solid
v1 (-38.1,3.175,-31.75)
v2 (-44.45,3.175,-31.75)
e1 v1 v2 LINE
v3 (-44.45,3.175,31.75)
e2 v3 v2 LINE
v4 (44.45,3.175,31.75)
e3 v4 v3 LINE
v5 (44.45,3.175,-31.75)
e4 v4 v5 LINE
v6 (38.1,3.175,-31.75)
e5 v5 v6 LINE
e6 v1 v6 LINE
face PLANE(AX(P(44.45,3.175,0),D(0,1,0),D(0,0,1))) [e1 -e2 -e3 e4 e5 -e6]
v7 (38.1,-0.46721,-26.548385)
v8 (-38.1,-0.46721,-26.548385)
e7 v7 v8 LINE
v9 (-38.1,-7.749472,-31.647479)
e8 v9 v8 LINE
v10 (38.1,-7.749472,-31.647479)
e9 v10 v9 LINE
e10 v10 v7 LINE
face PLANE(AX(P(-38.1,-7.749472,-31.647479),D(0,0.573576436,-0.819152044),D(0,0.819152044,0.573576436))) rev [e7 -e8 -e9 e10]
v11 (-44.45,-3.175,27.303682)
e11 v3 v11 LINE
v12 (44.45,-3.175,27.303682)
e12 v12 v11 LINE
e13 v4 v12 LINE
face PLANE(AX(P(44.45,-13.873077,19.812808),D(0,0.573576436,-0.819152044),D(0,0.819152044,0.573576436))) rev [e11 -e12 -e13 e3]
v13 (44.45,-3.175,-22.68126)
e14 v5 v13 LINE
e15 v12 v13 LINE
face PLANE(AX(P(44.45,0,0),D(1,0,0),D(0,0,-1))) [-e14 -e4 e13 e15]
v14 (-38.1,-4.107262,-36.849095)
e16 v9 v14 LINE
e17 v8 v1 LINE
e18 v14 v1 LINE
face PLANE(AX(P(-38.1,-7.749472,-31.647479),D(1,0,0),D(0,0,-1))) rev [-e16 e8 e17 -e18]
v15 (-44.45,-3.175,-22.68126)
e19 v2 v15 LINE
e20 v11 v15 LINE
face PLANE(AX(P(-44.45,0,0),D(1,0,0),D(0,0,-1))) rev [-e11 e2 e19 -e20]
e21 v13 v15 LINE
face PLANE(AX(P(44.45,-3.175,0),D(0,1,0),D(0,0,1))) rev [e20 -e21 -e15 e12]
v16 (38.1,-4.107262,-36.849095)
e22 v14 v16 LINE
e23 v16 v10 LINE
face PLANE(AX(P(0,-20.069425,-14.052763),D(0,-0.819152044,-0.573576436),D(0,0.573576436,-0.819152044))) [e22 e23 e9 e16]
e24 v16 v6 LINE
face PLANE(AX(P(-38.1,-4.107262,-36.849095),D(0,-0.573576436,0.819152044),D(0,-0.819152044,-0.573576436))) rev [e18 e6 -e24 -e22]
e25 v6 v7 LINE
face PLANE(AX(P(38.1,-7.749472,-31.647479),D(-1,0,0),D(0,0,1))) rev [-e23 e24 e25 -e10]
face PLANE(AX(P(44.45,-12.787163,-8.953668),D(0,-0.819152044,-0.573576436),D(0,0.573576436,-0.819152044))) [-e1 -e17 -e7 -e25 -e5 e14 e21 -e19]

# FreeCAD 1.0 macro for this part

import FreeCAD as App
import Part
import Sketcher
from FreeCAD import Vector
Q = App.Units.Quantity

doc = App.newDocument("Part")
params = doc.addObject("Spreadsheet::Sheet", "Params")
for row, (alias, value) in enumerate([
    ("sketch1_height", "2.5 in"),
    ("pad1_length", "3.5 in"),
    ("sketch2_width", "3 in"),
    ("sketch2_height", "0.25 in"),
    ("pad2_length", "0.35 in"),
], start=1):
    params.set(f"A{row}", alias)
    params.set(f"B{row}", "=" + value)
    params.setAlias(f"B{row}", alias)

body = doc.addObject("PartDesign::Body", "Body")

sketch1 = body.newObject("Sketcher::SketchObject", "Sketch")
sketch1.AttachmentSupport = (doc.getObject("YZ_Plane"), [""])
sketch1.MapMode = "FlatFace"
sketch1.addGeometry(Part.LineSegment(Vector(-3, -23, 0), Vector(3, -32, 0)), False)
sketch1.addGeometry(Part.LineSegment(Vector(3, -32, 0), Vector(3, 32, 0)), False)
sketch1.addGeometry(Part.LineSegment(Vector(3, 32, 0), Vector(-3, 27, 0)), False)
sketch1.addGeometry(Part.LineSegment(Vector(-3, 27, 0), Vector(-3, -23, 0)), False)
sketch1.addConstraint(Sketcher.Constraint("Coincident", 0, 2, 1, 1))
sketch1.addConstraint(Sketcher.Constraint("Coincident", 1, 2, 2, 1))
sketch1.addConstraint(Sketcher.Constraint("Coincident", 2, 2, 3, 1))
sketch1.addConstraint(Sketcher.Constraint("Coincident", 3, 2, 0, 1))
sketch1.addConstraint(Sketcher.Constraint("Vertical", 1))
sketch1.addConstraint(Sketcher.Constraint("Vertical", 3))
sketch1.addConstraint(Sketcher.Constraint("Perpendicular", 0, 2))
sketch1.addConstraint(Sketcher.Constraint("DistanceY", 1, 1, 1, 2, Q("2.5 in")))
sketch1.addConstraint(Sketcher.Constraint("Angle", 0, Q("-55 deg")))
sketch1.addConstraint(Sketcher.Constraint("DistanceY", 0, 2, -1, 1, Q("1.25 in")))
sketch1.addConstraint(Sketcher.Constraint("DistanceX", 2, 2, 1, 2, Q("0.25 in")))
sketch1.addConstraint(Sketcher.Constraint("DistanceX", -1, 1, 0, 2, Q("0.125 in")))
sketch1.setExpression("Constraints[7]", "Params.sketch1_height")
pad1 = body.newObject("PartDesign::Pad", "Pad")
pad1.Profile = sketch1
pad1.setExpression("Length", "Params.pad1_length")
pad1.Midplane = True

sketch2 = body.newObject("Sketcher::SketchObject", "Sketch001")
sketch2.Placement = App.Placement(Vector(0, -12.787163, -8.953668), App.Rotation(Vector(1, 0, 0), Vector(0, -0.573576436, 0.819152044), Vector(0, -0.819152044, -0.573576436), "ZXY"))
sketch2.addGeometry(Part.LineSegment(Vector(-38, -21, 0), Vector(-38, -28, 0)), False)
sketch2.addGeometry(Part.LineSegment(Vector(-38, -28, 0), Vector(38, -28, 0)), False)
sketch2.addGeometry(Part.LineSegment(Vector(38, -28, 0), Vector(38, -21, 0)), False)
sketch2.addGeometry(Part.LineSegment(Vector(38, -21, 0), Vector(-38, -21, 0)), False)
sketch2.addConstraint(Sketcher.Constraint("Coincident", 0, 2, 1, 1))
sketch2.addConstraint(Sketcher.Constraint("Coincident", 1, 2, 2, 1))
sketch2.addConstraint(Sketcher.Constraint("Coincident", 2, 2, 3, 1))
sketch2.addConstraint(Sketcher.Constraint("Coincident", 3, 2, 0, 1))
sketch2.addConstraint(Sketcher.Constraint("Vertical", 0))
sketch2.addConstraint(Sketcher.Constraint("Horizontal", 1))
sketch2.addConstraint(Sketcher.Constraint("Vertical", 2))
sketch2.addConstraint(Sketcher.Constraint("Horizontal", 3))
sketch2.addConstraint(Sketcher.Constraint("DistanceX", 1, 1, 1, 2, Q("3 in")))
sketch2.addConstraint(Sketcher.Constraint("DistanceY", 0, 2, 0, 1, Q("0.25 in")))
sketch2.addConstraint(Sketcher.Constraint("DistanceX", 0, 2, -1, 1, Q("1.5 in")))
sketch2.addConstraint(Sketcher.Constraint("DistanceY", 0, 2, -1, 1, Q("27.829183 mm")))
sketch2.setExpression("Constraints[8]", "Params.sketch2_width")
sketch2.setExpression("Constraints[9]", "Params.sketch2_height")
pad2 = body.newObject("PartDesign::Pad", "Pad001")
pad2.Profile = sketch2
pad2.setExpression("Length", "Params.pad2_length")

doc.recompute()
